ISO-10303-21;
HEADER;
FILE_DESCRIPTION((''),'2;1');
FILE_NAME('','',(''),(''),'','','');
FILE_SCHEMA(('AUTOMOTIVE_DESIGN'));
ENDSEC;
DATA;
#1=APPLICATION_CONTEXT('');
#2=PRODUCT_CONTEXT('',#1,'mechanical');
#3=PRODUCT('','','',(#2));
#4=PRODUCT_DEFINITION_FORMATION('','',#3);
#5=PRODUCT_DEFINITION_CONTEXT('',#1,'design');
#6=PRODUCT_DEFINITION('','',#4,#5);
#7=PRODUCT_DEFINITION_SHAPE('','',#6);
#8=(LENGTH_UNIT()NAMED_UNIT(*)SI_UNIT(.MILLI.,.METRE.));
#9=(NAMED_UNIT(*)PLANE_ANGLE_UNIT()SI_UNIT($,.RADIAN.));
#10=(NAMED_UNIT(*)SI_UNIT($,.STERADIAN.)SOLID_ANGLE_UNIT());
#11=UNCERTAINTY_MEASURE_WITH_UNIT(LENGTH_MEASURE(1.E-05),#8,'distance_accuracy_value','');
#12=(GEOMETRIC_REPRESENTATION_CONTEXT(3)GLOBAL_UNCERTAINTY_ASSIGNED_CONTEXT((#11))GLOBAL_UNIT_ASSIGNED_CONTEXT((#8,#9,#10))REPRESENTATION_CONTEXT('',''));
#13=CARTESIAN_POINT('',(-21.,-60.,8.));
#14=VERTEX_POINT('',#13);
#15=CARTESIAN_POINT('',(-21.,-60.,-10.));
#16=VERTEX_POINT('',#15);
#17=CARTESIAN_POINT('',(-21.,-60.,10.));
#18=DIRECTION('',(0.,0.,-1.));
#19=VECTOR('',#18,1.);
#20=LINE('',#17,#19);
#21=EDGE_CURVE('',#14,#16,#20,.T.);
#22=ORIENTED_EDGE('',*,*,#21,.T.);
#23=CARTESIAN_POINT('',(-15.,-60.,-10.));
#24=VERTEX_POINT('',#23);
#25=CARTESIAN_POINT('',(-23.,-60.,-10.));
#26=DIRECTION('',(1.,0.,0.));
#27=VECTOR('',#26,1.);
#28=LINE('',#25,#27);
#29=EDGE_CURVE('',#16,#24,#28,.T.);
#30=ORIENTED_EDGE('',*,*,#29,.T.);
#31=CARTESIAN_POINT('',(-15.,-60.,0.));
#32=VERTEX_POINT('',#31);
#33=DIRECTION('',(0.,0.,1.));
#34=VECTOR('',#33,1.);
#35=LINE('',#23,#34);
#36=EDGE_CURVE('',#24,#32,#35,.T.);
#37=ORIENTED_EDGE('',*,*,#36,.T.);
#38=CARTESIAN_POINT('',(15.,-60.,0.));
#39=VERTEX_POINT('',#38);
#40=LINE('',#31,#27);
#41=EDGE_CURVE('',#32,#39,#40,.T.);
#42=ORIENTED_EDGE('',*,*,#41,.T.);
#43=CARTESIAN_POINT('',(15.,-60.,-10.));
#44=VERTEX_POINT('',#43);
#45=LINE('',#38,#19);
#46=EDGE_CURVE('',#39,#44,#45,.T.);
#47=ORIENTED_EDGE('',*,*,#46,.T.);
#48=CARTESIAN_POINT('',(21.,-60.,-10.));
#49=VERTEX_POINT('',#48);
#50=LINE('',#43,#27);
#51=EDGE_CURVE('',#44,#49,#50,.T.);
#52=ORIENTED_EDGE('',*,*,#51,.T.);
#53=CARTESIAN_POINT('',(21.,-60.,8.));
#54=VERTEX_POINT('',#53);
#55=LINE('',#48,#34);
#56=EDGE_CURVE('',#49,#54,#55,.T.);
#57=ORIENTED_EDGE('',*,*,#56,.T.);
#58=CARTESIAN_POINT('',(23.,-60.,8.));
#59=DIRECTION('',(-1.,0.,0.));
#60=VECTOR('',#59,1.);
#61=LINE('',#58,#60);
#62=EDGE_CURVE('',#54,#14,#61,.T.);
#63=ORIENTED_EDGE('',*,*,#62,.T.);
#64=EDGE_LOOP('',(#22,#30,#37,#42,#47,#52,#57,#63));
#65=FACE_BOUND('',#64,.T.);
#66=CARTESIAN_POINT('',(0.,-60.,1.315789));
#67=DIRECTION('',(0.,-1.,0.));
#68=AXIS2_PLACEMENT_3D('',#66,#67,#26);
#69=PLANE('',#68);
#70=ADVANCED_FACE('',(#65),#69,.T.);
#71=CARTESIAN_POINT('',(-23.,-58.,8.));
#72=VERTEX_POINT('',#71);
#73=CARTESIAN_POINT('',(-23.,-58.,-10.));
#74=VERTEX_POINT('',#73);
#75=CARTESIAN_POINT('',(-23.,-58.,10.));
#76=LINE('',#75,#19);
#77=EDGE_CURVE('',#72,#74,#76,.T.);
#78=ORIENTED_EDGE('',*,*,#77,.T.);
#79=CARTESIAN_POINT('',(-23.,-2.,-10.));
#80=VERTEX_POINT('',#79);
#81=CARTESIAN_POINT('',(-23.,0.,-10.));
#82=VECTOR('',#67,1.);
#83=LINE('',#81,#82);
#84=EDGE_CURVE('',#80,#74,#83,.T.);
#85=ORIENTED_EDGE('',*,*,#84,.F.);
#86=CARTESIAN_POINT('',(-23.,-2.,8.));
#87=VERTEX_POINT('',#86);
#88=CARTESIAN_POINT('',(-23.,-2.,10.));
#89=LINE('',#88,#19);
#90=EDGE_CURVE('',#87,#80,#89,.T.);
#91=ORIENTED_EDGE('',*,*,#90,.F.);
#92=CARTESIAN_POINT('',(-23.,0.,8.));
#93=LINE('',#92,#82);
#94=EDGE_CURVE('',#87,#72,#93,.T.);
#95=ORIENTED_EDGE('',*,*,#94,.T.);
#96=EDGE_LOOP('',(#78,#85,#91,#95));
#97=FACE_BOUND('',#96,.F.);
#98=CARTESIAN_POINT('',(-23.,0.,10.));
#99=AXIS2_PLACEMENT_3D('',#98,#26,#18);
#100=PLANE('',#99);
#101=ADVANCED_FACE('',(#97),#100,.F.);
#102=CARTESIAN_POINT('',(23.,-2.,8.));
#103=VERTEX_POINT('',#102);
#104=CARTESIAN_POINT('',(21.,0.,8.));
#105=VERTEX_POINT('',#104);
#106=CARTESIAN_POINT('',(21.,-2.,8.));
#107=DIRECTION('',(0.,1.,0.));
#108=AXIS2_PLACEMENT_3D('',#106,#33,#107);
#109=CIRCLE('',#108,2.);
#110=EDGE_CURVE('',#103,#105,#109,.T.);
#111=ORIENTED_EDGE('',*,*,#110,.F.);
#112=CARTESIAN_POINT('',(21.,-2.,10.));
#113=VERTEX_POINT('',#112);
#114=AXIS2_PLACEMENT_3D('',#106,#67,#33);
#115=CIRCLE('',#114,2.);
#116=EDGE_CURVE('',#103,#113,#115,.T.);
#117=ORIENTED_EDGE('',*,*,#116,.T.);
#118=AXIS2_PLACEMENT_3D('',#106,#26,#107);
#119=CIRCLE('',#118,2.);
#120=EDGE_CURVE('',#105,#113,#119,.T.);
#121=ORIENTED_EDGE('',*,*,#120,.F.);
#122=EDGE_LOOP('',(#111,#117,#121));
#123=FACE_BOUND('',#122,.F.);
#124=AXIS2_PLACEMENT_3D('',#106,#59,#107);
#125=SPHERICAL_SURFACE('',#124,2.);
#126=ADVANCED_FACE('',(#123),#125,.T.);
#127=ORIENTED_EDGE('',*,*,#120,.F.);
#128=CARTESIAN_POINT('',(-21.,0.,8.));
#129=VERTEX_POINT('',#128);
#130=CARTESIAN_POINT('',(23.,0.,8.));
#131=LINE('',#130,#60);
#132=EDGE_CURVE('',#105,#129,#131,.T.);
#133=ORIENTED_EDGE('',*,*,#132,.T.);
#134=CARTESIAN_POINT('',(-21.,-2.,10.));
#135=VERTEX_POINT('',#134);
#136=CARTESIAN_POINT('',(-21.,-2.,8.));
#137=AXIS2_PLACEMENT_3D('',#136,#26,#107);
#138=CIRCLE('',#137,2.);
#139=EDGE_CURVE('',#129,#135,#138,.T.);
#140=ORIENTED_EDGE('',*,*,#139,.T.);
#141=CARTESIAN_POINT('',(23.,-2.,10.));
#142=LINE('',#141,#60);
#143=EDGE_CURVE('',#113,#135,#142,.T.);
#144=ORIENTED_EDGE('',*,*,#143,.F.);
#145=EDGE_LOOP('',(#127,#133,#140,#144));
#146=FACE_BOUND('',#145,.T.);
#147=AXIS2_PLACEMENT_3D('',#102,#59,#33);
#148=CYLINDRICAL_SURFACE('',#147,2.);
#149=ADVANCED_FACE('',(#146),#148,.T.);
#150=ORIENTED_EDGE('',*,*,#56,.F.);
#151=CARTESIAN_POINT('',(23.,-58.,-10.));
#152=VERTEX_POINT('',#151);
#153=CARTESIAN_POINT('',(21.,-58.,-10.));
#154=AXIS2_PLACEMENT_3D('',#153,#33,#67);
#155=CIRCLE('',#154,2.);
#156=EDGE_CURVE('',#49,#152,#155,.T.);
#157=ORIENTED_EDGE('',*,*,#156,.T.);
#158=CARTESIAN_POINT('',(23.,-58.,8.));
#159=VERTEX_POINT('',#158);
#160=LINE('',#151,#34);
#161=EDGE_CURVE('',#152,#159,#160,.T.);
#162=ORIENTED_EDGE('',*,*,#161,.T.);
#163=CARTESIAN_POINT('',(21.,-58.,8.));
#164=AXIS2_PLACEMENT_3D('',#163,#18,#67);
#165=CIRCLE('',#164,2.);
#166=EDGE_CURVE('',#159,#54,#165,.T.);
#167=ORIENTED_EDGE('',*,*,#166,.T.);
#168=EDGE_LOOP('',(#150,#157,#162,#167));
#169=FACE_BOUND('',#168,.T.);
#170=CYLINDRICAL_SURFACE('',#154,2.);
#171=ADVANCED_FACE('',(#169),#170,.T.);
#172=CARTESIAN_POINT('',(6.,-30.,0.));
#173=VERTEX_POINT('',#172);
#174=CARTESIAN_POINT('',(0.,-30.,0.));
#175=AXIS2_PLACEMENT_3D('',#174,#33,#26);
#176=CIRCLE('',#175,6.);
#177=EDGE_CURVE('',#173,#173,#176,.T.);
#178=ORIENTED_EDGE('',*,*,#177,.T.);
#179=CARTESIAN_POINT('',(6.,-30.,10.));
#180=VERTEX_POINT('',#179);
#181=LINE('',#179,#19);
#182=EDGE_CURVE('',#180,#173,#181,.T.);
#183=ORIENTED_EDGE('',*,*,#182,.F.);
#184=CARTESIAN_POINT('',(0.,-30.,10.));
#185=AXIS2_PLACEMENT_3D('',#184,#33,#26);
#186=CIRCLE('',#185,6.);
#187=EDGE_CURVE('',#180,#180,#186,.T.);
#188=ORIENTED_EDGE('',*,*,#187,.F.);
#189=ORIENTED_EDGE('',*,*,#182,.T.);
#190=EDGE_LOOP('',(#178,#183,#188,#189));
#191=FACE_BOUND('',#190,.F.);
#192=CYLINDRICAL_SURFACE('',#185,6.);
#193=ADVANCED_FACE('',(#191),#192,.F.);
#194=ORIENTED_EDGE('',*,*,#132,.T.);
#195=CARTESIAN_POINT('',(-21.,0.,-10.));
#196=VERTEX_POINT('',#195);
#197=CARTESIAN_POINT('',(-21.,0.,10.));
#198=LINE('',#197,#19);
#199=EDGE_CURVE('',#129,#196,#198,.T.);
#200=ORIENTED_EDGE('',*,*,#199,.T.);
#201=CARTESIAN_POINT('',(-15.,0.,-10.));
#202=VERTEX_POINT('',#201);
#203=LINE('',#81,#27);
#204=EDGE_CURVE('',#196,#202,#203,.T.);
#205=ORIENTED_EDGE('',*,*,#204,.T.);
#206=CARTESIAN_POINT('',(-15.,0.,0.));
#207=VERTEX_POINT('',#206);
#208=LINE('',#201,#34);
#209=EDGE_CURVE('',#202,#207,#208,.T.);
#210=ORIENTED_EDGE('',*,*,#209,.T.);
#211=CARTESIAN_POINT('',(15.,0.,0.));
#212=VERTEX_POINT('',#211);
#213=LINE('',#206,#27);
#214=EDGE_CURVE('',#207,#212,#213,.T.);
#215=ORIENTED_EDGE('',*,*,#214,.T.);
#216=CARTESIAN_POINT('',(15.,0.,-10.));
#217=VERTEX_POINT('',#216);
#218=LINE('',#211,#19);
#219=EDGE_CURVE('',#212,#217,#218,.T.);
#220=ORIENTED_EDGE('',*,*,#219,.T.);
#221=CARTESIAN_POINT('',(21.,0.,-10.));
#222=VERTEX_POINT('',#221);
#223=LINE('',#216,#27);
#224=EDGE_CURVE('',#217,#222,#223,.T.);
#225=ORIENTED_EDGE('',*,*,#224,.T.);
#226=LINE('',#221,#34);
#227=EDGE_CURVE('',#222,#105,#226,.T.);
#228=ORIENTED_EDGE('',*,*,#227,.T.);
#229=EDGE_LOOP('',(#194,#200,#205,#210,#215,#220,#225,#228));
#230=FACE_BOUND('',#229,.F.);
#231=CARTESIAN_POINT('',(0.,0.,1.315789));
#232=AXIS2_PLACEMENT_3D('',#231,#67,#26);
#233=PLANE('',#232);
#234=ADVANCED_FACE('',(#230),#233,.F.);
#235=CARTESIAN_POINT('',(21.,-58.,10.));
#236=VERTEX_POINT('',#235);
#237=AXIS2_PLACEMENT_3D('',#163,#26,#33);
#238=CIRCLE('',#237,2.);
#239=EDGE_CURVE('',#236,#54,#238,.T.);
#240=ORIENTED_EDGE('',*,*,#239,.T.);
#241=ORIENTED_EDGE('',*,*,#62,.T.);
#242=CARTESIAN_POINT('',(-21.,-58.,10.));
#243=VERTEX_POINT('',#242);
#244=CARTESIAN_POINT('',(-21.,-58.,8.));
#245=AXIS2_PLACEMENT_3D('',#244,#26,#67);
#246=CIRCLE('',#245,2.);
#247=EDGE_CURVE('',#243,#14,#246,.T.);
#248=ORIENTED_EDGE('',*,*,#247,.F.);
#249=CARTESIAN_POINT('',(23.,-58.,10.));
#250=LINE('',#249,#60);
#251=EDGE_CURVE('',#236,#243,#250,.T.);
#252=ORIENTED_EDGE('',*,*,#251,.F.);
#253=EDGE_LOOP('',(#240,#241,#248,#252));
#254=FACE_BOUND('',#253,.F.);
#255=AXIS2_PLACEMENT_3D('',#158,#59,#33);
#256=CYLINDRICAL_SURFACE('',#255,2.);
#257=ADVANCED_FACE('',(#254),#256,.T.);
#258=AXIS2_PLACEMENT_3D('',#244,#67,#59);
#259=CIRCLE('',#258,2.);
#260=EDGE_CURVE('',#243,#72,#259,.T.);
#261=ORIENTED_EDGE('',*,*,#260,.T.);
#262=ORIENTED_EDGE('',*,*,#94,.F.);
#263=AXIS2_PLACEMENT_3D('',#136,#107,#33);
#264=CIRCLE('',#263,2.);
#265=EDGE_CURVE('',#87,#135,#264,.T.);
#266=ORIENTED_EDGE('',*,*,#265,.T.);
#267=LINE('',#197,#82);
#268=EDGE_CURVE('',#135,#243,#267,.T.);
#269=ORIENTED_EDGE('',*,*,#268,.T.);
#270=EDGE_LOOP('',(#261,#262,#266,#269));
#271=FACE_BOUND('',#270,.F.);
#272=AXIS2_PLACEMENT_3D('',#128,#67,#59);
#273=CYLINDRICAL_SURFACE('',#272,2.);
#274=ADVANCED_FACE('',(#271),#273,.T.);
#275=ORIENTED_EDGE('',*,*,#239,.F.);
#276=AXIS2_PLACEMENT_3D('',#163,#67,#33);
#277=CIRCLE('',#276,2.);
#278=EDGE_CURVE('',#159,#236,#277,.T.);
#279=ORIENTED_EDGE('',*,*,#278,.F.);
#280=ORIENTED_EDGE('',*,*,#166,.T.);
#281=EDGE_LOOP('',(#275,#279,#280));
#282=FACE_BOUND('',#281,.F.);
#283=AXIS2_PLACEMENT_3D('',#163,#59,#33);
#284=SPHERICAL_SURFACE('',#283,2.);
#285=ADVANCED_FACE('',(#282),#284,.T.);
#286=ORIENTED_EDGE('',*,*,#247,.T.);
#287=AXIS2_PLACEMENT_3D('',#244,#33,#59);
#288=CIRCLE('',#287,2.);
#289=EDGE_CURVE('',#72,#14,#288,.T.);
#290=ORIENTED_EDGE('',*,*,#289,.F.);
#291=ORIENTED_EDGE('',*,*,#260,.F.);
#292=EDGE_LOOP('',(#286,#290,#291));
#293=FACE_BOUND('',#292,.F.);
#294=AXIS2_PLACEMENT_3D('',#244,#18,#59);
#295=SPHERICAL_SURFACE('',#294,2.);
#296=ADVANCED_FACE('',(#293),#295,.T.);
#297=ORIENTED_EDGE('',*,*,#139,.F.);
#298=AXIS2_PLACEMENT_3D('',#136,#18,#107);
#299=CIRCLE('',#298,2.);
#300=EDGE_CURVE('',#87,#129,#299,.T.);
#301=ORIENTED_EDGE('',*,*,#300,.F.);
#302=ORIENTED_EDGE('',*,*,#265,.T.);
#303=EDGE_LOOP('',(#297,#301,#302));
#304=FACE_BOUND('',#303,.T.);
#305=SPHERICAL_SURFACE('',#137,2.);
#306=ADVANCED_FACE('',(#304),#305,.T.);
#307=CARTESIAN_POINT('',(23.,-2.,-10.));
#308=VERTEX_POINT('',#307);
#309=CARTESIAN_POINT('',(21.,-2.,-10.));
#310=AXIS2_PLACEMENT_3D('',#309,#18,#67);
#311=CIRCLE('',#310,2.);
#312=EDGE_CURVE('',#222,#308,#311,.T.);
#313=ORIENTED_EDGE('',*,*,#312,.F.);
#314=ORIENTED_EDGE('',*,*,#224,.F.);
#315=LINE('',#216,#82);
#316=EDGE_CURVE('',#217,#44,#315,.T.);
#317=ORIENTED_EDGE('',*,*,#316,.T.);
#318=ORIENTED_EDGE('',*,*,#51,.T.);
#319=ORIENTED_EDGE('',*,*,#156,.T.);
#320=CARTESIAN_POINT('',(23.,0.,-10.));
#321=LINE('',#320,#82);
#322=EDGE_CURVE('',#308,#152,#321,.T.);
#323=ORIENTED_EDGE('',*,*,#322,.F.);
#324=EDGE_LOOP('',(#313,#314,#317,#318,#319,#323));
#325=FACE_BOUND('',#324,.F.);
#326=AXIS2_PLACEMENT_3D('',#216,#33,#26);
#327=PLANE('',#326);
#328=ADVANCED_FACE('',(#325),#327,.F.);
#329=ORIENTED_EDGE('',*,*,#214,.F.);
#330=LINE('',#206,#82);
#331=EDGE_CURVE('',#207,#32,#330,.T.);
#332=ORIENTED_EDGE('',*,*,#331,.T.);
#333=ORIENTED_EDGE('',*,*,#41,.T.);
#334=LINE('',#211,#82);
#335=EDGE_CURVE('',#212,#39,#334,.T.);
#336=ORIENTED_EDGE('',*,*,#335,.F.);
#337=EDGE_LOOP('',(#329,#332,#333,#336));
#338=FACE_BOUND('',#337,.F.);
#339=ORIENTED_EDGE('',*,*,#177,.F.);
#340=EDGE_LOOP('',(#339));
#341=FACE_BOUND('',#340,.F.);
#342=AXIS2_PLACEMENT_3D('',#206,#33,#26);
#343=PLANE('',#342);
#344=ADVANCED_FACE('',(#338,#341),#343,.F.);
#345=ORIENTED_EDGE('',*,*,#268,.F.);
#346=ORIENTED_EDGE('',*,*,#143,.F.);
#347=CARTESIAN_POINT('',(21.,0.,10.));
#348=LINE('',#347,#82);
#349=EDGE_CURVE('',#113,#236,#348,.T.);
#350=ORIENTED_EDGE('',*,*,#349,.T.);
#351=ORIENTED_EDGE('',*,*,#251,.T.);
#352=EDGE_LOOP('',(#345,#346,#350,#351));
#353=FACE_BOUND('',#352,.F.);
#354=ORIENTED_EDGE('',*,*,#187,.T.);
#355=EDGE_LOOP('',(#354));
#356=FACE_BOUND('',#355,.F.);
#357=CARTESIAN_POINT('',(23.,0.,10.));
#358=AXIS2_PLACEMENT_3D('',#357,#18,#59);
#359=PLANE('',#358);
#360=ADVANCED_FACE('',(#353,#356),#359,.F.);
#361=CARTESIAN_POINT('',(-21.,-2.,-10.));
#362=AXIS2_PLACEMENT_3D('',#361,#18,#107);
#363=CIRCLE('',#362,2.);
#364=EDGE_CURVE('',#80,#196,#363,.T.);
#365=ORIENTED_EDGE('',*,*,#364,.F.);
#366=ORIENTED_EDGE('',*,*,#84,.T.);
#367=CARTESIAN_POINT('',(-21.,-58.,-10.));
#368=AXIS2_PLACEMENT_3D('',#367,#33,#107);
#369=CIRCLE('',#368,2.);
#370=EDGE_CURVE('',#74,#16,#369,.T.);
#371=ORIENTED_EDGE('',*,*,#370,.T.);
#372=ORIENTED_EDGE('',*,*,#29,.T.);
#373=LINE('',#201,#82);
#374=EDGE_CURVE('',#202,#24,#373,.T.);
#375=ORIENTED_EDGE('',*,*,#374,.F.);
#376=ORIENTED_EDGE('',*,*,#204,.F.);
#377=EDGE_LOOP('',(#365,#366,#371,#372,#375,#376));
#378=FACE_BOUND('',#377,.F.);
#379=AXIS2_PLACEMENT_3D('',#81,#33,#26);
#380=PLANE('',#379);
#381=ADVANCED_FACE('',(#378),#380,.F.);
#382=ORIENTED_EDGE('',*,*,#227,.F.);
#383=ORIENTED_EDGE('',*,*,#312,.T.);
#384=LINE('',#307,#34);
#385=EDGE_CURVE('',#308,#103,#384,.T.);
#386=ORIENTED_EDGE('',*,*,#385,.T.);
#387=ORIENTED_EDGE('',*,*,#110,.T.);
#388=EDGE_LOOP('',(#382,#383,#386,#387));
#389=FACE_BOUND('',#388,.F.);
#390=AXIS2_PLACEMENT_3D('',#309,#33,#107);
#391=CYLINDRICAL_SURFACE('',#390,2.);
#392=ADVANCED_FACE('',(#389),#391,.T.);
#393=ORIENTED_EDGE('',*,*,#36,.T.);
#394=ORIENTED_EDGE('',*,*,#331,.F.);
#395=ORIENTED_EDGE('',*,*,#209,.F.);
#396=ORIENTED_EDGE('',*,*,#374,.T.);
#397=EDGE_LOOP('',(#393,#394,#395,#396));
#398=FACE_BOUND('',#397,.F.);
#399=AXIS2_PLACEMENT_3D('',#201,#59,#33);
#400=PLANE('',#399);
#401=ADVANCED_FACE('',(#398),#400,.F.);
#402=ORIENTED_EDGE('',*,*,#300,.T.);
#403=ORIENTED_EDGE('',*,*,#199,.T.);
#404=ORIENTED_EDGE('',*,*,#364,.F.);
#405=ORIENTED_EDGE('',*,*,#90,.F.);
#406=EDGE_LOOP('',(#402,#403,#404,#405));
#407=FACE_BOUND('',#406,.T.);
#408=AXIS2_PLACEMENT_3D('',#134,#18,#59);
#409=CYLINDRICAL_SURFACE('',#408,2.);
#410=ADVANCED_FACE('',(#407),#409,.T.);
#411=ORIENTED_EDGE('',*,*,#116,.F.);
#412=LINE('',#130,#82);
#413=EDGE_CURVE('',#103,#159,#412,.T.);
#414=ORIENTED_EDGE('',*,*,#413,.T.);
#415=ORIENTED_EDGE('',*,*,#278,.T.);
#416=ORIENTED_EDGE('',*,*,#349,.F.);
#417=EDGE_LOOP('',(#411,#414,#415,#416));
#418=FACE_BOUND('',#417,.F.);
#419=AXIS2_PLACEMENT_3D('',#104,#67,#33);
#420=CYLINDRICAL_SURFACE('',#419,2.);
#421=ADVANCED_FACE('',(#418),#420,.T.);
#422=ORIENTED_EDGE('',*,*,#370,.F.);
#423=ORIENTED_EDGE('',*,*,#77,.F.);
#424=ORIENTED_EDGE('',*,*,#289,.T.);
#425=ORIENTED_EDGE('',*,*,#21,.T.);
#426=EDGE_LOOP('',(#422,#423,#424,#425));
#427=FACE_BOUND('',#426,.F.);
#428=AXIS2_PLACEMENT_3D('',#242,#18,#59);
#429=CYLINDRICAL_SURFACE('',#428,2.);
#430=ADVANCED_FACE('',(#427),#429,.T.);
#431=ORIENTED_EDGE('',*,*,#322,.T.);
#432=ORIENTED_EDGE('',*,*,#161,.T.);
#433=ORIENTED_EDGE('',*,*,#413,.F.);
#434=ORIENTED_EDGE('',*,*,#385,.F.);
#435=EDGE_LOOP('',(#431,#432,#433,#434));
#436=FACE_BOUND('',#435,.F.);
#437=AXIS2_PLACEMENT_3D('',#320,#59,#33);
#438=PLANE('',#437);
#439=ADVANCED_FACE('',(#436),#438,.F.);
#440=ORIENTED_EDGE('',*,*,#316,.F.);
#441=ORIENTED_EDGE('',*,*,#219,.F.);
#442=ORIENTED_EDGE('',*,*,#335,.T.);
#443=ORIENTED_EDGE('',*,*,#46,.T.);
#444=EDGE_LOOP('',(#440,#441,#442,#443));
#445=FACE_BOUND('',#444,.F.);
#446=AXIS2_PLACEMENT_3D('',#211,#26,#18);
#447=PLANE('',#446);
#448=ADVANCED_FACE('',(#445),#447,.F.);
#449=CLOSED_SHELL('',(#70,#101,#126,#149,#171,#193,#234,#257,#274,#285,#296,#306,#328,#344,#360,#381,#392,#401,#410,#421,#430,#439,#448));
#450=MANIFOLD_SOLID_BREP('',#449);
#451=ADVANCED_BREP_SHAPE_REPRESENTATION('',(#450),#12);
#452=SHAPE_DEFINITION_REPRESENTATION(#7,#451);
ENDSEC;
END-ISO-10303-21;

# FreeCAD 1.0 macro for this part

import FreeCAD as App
import Part
import Sketcher

V = App.Vector
Q = App.Units.Quantity


def edges_at(feature, points):
    """Names of the edges that pass closest to the given points."""
    edges = feature.Shape.Edges
    near = lambda p: min(range(len(edges)), key=lambda i: edges[i].distToShape(Part.Vertex(*p))[0])
    return sorted({f"Edge{near(p) + 1}" for p in points})


def add_polygon(sketch, points):
    """Adds a closed chain of lines whose ends are joined by coincident constraints."""
    first, n = sketch.GeometryCount, len(points)
    for a, b in zip(points, points[1:] + points[:1]):
        sketch.addGeometry(Part.LineSegment(App.Vector(*a, 0), App.Vector(*b, 0)), False)
    for i in range(n):
        sketch.addConstraint(Sketcher.Constraint("Coincident", first + i, 2, first + (i + 1) % n, 1))

doc = App.newDocument("Part")
body = doc.addObject("PartDesign::Body", "Body")

sketch1 = body.newObject("Sketcher::SketchObject", "Sketch")
sketch1.AttachmentSupport = (doc.getObject("XZ_Plane"), [""])
sketch1.MapMode = "FlatFace"
add_polygon(sketch1, [(-23, 10), (-23, -10), (-15, -10), (-15, 0), (15, 0), (15, -10), (23, -10), (23, 10)])
sketch1.addConstraint([
    Sketcher.Constraint("Vertical", 0),
    Sketcher.Constraint("Horizontal", 1),
    Sketcher.Constraint("Vertical", 2),
    Sketcher.Constraint("Horizontal", 3),
    Sketcher.Constraint("Vertical", 4),
    Sketcher.Constraint("Horizontal", 5),
    Sketcher.Constraint("Vertical", 6),
    Sketcher.Constraint("Horizontal", 7),
    Sketcher.Constraint("Symmetric", 2, 2, 3, 2, -1, 1),
    Sketcher.Constraint("Symmetric", 0, 2, 6, 2, -1, 1),
    Sketcher.Constraint("Horizontal", 1, 2, 4, 2),
    Sketcher.Constraint("DistanceX", 1, 1, 1, 2, Q("8 mm")),
    Sketcher.Constraint("DistanceX", 3, 1, 3, 2, Q("30 mm")),
    Sketcher.Constraint("DistanceY", 0, 2, 0, 1, Q("20 mm")),
])
pad1 = body.newObject("PartDesign::Pad", "Pad")
pad1.Profile = sketch1
pad1.Length = 60

sketch2 = body.newObject("Sketcher::SketchObject", "Sketch001")
sketch2.AttachmentSupport = (doc.getObject("XY_Plane"), [""])
sketch2.MapMode = "FlatFace"
sketch2.AttachmentOffset = App.Placement(V(0, 0, 10), App.Rotation())
sketch2.addGeometry(Part.Circle(V(0, -30, 0), V(0, 0, 1), 6), False)
sketch2.addConstraint([
    Sketcher.Constraint("PointOnObject", 0, 3, -2),
    Sketcher.Constraint("Diameter", 0, Q("12 mm")),
    Sketcher.Constraint("DistanceY", 0, 3, -1, 1, Q("30 mm")),
])
pocket1 = body.newObject("PartDesign::Pocket", "Pocket")
pocket1.Profile = sketch2
pocket1.Length = 25
doc.recompute()

fillet = body.newObject("PartDesign::Fillet", "Fillet")
fillet.Base = (pocket1, edges_at(pocket1, [
    (0, 0, 10),
    (23, 0, 0),
    (-23, 0, 0),
    (-23, -60, 0),
    (-23, -30, 10),
    (0, -60, 10),
    (23, -30, 10),
    (23, -60, 0),
]))
fillet.Radius = 2

doc.recompute()
